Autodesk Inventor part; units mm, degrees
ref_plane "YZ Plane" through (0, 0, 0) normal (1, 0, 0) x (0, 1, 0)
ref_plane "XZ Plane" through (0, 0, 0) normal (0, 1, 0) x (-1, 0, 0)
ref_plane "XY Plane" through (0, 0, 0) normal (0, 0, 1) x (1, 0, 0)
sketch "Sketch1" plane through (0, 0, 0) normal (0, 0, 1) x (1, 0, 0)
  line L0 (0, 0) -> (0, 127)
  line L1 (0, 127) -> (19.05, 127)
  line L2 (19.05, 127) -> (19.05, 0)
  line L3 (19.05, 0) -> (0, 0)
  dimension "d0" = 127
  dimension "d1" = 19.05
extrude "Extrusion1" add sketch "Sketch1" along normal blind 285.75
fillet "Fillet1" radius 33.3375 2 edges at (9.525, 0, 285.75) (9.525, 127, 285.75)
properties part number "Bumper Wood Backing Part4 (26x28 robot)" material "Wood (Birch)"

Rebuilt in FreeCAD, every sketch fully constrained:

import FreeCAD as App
import Part
import Sketcher

V = App.Vector
Q = App.Units.Quantity


def edges_at(feature, points):
    """Names of the edges that pass closest to the given points."""
    edges = feature.Shape.Edges
    near = lambda p: min(range(len(edges)), key=lambda i: edges[i].distToShape(Part.Vertex(*p))[0])
    return sorted({f"Edge{near(p) + 1}" for p in points})

doc = App.newDocument("Part")
body = doc.addObject("PartDesign::Body", "Body")

# Sketch on XY plane
sketch1 = body.newObject("Sketcher::SketchObject", "Sketch")
sketch1.AttachmentSupport = (doc.getObject("XY_Plane"), [""])
sketch1.MapMode = "FlatFace"
sketch1.addGeometry(Part.LineSegment(V(0, 127, 0), V(0, 0, 0)), False)
sketch1.addGeometry(Part.LineSegment(V(0, 0, 0), V(19, 0, 0)), False)
sketch1.addGeometry(Part.LineSegment(V(19, 0, 0), V(19, 127, 0)), False)
sketch1.addGeometry(Part.LineSegment(V(19, 127, 0), V(0, 127, 0)), False)
sketch1.addConstraint(Sketcher.Constraint("Coincident", 0, 2, 1, 1))
sketch1.addConstraint(Sketcher.Constraint("Coincident", 1, 2, 2, 1))
sketch1.addConstraint(Sketcher.Constraint("Coincident", 2, 2, 3, 1))
sketch1.addConstraint(Sketcher.Constraint("Coincident", 3, 2, 0, 1))
sketch1.addConstraint(Sketcher.Constraint("Vertical", 0))
sketch1.addConstraint(Sketcher.Constraint("Horizontal", 1))
sketch1.addConstraint(Sketcher.Constraint("Vertical", 2))
sketch1.addConstraint(Sketcher.Constraint("Horizontal", 3))
sketch1.addConstraint(Sketcher.Constraint("Coincident", 0, 2, -1, 1))
sketch1.addConstraint(Sketcher.Constraint("DistanceY", 0, 2, 0, 1, Q("5 in")))
sketch1.addConstraint(Sketcher.Constraint("DistanceX", 1, 1, 1, 2, Q("0.75 in")))
pad1 = body.newObject("PartDesign::Pad", "Pad")
pad1.Profile = sketch1
pad1.Length = Q("11.25 in")
doc.recompute()

fillet = body.newObject("PartDesign::Fillet", "Fillet")
fillet.Base = (pad1, edges_at(pad1, [(9.525, 0, 285.75), (9.525, 127, 285.75)]))
fillet.Radius = Q("1.3125 in")

doc.recompute()
